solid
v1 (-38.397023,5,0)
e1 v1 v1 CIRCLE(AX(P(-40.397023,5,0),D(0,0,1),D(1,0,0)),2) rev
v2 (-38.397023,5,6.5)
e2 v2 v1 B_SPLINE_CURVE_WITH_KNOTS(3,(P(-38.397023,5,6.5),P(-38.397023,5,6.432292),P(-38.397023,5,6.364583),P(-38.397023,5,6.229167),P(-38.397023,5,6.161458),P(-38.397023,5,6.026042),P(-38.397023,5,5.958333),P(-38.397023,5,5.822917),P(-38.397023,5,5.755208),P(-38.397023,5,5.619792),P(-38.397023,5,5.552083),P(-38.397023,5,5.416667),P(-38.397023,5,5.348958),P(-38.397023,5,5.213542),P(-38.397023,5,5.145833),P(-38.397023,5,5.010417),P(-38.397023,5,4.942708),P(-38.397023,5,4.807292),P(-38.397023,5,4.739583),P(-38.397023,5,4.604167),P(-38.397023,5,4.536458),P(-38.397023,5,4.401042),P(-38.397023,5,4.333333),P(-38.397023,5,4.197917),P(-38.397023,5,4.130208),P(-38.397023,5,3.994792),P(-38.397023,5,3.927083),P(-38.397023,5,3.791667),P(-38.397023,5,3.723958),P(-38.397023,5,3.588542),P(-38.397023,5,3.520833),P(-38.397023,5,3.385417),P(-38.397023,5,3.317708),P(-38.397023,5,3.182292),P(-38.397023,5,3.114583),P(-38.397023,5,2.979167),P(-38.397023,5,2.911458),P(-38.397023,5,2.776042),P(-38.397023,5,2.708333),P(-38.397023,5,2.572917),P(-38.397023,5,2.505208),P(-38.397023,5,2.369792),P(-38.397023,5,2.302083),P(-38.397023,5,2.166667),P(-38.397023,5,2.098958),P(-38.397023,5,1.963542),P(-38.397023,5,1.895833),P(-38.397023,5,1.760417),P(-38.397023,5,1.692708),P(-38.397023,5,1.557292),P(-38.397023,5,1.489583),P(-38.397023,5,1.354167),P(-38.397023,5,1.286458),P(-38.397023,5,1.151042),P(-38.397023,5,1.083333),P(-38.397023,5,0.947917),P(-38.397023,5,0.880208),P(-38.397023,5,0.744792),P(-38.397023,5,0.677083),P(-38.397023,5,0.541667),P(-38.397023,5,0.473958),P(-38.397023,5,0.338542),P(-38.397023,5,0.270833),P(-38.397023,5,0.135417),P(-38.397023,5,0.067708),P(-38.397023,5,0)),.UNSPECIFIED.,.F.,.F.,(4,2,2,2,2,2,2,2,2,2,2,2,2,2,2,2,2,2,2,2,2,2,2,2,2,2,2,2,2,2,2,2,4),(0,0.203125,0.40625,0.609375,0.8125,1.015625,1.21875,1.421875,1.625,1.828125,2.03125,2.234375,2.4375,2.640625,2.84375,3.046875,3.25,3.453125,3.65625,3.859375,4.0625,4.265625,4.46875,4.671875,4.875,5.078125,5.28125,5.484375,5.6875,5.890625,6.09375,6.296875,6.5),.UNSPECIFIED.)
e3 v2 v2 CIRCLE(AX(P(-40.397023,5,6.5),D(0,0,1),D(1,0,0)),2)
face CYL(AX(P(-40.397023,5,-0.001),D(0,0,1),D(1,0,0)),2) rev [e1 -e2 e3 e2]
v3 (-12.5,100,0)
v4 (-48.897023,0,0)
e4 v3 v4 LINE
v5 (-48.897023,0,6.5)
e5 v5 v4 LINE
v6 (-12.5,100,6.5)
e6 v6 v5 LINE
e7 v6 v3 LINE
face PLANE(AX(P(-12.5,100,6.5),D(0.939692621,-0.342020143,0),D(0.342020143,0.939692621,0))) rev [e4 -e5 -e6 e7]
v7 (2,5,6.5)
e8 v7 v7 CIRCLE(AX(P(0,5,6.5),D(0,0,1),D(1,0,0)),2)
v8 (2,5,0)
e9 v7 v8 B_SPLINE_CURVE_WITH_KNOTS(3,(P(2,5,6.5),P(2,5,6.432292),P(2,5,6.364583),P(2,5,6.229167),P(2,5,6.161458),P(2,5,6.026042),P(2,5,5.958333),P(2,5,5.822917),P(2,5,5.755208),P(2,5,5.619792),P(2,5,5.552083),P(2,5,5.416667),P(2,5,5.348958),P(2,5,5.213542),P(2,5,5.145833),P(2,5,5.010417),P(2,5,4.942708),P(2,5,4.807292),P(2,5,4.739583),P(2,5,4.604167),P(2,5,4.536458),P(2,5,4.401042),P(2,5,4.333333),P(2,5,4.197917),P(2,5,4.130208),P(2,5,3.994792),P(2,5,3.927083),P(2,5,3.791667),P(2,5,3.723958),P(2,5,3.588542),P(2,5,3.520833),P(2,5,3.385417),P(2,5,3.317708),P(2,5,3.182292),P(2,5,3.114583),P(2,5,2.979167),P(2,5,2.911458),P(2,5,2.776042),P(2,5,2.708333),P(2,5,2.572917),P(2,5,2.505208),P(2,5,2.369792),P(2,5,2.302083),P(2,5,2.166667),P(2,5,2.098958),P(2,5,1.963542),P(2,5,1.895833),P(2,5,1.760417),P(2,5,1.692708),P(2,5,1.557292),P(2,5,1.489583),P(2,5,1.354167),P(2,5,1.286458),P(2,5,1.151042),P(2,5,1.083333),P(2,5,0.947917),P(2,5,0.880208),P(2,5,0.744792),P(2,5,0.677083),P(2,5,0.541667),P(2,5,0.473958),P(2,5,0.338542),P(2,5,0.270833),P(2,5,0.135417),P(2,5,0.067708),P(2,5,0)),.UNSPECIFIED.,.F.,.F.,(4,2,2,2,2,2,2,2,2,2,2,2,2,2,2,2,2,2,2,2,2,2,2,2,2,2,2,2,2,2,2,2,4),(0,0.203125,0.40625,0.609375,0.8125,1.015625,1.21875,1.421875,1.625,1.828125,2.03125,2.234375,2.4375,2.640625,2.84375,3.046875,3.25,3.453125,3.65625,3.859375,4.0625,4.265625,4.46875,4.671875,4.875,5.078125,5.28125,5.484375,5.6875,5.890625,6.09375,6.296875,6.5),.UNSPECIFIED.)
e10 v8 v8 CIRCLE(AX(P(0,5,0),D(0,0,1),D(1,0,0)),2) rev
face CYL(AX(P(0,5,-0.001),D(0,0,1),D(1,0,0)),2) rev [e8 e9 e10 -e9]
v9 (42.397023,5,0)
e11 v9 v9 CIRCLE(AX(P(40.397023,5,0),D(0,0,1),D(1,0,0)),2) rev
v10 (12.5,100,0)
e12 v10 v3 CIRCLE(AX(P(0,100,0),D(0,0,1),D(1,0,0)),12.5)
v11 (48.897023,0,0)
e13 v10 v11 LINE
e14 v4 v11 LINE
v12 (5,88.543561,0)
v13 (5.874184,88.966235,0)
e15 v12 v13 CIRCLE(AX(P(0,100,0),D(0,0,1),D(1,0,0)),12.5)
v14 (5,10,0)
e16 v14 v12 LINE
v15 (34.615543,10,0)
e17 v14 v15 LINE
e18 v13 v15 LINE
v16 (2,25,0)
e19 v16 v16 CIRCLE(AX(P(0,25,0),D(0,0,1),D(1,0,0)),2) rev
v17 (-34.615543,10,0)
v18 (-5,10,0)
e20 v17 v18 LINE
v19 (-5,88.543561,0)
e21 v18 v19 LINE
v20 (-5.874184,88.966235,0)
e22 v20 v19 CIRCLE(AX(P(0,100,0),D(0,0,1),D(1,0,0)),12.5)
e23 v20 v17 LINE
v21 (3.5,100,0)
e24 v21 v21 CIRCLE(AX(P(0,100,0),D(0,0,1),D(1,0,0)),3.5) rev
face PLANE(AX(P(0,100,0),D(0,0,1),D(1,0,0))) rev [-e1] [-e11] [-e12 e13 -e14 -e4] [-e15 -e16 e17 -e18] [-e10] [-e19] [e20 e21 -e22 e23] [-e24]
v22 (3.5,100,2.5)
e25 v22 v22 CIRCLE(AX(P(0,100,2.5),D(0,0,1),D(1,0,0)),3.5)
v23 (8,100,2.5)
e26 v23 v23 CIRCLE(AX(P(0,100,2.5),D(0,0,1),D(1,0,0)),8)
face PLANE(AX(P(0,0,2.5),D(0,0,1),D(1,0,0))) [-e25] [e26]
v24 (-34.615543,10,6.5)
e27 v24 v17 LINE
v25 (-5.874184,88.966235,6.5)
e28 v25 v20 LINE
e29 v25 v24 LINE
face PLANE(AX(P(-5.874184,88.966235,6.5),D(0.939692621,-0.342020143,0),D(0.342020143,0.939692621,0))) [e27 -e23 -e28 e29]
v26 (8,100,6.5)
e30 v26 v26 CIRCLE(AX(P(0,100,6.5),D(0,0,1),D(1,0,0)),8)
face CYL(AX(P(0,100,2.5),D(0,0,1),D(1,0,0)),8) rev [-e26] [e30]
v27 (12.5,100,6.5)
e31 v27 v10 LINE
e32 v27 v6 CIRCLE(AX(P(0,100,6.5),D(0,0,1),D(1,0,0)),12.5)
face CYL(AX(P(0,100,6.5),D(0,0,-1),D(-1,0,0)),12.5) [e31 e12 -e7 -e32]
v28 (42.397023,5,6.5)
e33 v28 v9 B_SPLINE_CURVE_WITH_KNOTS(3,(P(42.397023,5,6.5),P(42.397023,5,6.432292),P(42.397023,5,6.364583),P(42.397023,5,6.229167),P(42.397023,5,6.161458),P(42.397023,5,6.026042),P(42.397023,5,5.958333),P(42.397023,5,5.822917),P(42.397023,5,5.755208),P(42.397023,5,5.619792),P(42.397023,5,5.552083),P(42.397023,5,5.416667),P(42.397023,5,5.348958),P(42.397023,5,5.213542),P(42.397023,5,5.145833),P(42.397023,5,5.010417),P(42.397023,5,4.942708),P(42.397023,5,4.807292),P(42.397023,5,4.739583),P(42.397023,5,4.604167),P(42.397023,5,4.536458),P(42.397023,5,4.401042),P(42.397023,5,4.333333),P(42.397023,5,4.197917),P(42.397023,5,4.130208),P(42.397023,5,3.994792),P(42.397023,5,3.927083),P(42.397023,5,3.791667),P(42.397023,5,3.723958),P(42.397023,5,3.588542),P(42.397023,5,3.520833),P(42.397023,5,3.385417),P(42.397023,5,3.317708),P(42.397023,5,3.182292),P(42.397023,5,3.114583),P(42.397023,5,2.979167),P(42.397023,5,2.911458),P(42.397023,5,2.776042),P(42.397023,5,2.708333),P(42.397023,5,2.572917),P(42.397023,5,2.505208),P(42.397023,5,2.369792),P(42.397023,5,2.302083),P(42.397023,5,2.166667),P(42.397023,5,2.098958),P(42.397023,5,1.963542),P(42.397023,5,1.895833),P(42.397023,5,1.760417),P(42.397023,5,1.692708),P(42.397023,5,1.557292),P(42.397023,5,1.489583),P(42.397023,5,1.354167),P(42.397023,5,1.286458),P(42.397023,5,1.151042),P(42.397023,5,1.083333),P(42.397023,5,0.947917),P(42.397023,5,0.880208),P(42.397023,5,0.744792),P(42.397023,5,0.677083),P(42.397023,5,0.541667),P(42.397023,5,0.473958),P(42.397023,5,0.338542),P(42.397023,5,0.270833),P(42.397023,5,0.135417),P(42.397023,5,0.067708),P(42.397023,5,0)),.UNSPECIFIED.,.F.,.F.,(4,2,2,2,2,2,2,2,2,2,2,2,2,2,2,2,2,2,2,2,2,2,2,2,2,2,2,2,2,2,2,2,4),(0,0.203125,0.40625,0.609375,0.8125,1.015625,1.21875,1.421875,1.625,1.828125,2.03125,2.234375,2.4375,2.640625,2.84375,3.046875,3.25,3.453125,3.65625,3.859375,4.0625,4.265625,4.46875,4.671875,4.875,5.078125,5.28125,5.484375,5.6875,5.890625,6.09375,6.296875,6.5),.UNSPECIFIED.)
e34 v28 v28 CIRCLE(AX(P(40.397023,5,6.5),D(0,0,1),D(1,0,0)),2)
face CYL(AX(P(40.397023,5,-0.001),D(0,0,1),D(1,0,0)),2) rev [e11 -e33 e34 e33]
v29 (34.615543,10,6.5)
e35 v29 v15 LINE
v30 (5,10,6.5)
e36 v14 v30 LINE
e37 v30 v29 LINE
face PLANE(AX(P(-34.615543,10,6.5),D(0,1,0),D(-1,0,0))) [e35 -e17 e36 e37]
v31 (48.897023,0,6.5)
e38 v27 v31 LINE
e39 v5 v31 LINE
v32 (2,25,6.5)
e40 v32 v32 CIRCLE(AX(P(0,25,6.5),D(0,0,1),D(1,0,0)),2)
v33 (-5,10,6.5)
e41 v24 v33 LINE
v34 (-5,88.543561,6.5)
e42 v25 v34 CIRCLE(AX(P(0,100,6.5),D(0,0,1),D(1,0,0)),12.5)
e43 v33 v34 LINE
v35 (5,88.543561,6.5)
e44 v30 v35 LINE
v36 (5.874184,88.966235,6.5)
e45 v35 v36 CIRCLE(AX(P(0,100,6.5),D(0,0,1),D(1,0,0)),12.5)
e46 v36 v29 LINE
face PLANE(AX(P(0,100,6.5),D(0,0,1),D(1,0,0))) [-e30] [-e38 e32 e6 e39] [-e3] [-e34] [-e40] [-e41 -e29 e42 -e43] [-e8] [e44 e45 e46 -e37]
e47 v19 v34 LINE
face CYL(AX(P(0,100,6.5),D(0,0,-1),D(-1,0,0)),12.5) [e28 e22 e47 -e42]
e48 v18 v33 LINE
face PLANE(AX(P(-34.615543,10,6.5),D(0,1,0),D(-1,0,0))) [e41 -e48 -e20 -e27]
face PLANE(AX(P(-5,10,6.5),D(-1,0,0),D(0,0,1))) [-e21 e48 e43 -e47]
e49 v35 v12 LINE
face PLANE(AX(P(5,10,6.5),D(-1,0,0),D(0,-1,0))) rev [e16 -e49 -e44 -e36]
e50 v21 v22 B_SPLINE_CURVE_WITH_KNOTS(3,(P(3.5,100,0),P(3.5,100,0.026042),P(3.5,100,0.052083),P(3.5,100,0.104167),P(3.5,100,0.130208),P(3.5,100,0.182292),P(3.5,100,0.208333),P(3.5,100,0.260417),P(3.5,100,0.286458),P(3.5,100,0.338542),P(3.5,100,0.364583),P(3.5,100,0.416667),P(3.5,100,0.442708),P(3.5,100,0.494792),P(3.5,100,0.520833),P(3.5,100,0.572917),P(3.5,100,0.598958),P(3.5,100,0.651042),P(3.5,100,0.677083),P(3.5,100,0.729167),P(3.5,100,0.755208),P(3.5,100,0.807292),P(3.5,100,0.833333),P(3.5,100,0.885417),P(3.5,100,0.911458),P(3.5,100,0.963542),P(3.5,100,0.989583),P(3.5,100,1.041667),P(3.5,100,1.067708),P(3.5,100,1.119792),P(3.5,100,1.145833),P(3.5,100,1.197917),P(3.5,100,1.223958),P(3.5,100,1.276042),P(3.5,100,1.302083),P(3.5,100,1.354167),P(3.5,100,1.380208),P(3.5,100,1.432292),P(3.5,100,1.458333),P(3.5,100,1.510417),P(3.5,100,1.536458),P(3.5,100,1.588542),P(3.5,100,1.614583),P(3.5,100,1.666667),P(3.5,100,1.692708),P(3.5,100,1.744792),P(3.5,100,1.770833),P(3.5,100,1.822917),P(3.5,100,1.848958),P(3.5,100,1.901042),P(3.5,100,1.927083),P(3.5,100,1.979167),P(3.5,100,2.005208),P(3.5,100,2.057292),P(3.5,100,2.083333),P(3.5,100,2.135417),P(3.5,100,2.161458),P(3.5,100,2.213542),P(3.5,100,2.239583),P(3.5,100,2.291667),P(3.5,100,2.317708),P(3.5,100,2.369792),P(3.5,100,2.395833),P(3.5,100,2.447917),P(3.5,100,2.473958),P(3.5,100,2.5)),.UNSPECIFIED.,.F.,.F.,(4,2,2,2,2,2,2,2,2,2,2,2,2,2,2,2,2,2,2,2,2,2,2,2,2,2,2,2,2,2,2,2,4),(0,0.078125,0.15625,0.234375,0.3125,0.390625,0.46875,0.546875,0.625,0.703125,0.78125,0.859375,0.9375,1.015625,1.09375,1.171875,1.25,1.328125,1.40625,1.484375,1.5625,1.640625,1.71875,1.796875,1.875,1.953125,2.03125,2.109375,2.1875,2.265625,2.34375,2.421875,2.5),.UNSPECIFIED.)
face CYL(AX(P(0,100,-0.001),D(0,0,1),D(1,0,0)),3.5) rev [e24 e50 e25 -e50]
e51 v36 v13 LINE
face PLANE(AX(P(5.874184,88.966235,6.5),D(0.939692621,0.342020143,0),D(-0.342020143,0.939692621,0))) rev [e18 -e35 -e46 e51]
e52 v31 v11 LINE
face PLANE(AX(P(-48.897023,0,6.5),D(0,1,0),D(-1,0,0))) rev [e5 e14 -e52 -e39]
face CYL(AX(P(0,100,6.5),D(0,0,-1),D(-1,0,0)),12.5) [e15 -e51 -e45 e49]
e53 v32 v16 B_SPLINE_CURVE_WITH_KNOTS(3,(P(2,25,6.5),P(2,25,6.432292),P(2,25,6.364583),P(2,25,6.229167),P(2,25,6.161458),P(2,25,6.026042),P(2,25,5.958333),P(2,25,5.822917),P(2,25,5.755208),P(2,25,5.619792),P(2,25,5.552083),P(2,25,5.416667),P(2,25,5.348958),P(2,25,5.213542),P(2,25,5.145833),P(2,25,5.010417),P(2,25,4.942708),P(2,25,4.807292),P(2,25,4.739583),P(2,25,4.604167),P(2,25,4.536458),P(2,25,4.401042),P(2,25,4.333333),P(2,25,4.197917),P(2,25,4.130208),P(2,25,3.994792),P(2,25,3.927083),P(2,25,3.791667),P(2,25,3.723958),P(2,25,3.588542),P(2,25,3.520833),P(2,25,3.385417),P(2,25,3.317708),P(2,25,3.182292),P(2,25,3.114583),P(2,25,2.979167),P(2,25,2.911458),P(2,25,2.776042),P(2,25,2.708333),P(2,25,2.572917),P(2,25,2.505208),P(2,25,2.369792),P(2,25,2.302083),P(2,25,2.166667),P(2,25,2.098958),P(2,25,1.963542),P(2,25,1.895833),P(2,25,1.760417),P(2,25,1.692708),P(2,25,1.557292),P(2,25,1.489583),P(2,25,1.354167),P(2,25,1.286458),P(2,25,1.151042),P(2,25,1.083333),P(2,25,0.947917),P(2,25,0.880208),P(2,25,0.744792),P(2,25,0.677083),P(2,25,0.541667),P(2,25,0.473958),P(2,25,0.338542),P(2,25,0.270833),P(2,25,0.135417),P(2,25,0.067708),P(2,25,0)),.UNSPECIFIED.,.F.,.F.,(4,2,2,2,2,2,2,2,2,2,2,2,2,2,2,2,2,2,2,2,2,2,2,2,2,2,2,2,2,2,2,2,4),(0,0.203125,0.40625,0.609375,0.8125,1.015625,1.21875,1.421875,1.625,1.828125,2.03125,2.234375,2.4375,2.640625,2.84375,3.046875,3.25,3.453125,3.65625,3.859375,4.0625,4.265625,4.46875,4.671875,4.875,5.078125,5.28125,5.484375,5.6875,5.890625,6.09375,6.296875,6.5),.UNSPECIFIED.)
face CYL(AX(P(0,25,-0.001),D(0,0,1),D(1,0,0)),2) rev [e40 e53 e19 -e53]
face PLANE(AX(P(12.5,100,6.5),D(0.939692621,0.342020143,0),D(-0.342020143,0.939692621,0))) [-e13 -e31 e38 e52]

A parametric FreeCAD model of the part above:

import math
import FreeCAD as App
import Part
import Sketcher

V = App.Vector
Q = App.Units.Quantity

doc = App.newDocument("Part")
body = doc.addObject("PartDesign::Body", "Body")

sketch1 = body.newObject("Sketcher::SketchObject", "Sketch")
sketch1.AttachmentSupport = (doc.getObject("XY_Plane"), [""])
sketch1.MapMode = "FlatFace"
sketch1.addGeometry(Part.ArcOfCircle(Part.Circle(V(0, 100, 0), V(0, 0, 1), 12.5), math.radians(0), math.radians(180)), False)
sketch1.addGeometry(Part.LineSegment(V(-12.5, 100, 0), V(-48.897023, 0, 0)), False)
sketch1.addGeometry(Part.LineSegment(V(-48.897023, 0, 0), V(48.897023, 0, 0)), False)
sketch1.addGeometry(Part.LineSegment(V(48.897023, 0, 0), V(12.5, 100, 0)), False)
sketch1.addGeometry(Part.ArcOfCircle(Part.Circle(V(0, 100, 0), V(0, 0, 1), 12.5), math.radians(-118.03006), math.radians(-113.578178)), False)
sketch1.addGeometry(Part.LineSegment(V(-5, 88.543561, 0), V(-5, 10, 0)), False)
sketch1.addGeometry(Part.LineSegment(V(-5, 10, 0), V(-34.615543, 10, 0)), False)
sketch1.addGeometry(Part.LineSegment(V(-34.615543, 10, 0), V(-5.874184, 88.966235, 0)), False)
sketch1.addGeometry(Part.ArcOfCircle(Part.Circle(V(0, 100, 0), V(0, 0, 1), 12.5), math.radians(-66.421822), math.radians(-61.96994)), False)
sketch1.addGeometry(Part.LineSegment(V(5.874184, 88.966235, 0), V(34.615543, 10, 0)), False)
sketch1.addGeometry(Part.LineSegment(V(34.615543, 10, 0), V(5, 10, 0)), False)
sketch1.addGeometry(Part.LineSegment(V(5, 10, 0), V(5, 88.543561, 0)), False)
sketch1.addConstraint(Sketcher.Constraint("Coincident", 0, 2, 1, 1))
sketch1.addConstraint(Sketcher.Constraint("Coincident", 1, 2, 2, 1))
sketch1.addConstraint(Sketcher.Constraint("Coincident", 2, 2, 3, 1))
sketch1.addConstraint(Sketcher.Constraint("Coincident", 3, 2, 0, 1))
sketch1.addConstraint(Sketcher.Constraint("Coincident", 4, 2, 5, 1))
sketch1.addConstraint(Sketcher.Constraint("Coincident", 5, 2, 6, 1))
sketch1.addConstraint(Sketcher.Constraint("Coincident", 6, 2, 7, 1))
sketch1.addConstraint(Sketcher.Constraint("Coincident", 7, 2, 4, 1))
sketch1.addConstraint(Sketcher.Constraint("Coincident", 8, 2, 9, 1))
sketch1.addConstraint(Sketcher.Constraint("Coincident", 9, 2, 10, 1))
sketch1.addConstraint(Sketcher.Constraint("Coincident", 10, 2, 11, 1))
sketch1.addConstraint(Sketcher.Constraint("Coincident", 11, 2, 8, 1))
sketch1.addConstraint(Sketcher.Constraint("Horizontal", 2))
sketch1.addConstraint(Sketcher.Constraint("Vertical", 5))
sketch1.addConstraint(Sketcher.Constraint("Horizontal", 6))
sketch1.addConstraint(Sketcher.Constraint("Horizontal", 10))
sketch1.addConstraint(Sketcher.Constraint("Vertical", 11))
sketch1.addConstraint(Sketcher.Constraint("Coincident", 4, 3, 0, 3))
sketch1.addConstraint(Sketcher.Constraint("Coincident", 8, 3, 0, 3))
sketch1.addConstraint(Sketcher.Constraint("Equal", 0, 4))
sketch1.addConstraint(Sketcher.Constraint("Equal", 4, 8))
sketch1.addConstraint(Sketcher.Constraint("Symmetric", 1, 2, 2, 2, -1, 1))
sketch1.addConstraint(Sketcher.Constraint("Symmetric", 0, 2, 3, 2, -2))
sketch1.addConstraint(Sketcher.Constraint("Symmetric", 6, 2, 9, 2, -2))
sketch1.addConstraint(Sketcher.Constraint("Parallel", 1, 7))
sketch1.addConstraint(Sketcher.Constraint("Parallel", 3, 9))
sketch1.addConstraint(Sketcher.Constraint("Horizontal", 8, 3, 0, 2))
sketch1.addConstraint(Sketcher.Constraint("Horizontal", 4, 2, 11, 2))
sketch1.addConstraint(Sketcher.Constraint("Radius", 0, 12.5))
sketch1.addConstraint(Sketcher.Constraint("Angle", 1, Q("-110 deg")))
sketch1.addConstraint(Sketcher.Constraint("DistanceY", -1, 1, 0, 3, 100.0))
sketch1.addConstraint(Sketcher.Constraint("DistanceX", 4, 2, -1, 1, 5.0))
sketch1.addConstraint(Sketcher.Constraint("DistanceY", -1, 1, 5, 2, 10.0))
sketch1.addConstraint(Sketcher.Constraint("DistanceX", 6, 2, 6, 1, 29.615543))
pad1 = body.newObject("PartDesign::Pad", "Pad")
pad1.Profile = sketch1
pad1.Length = 6.5

sketch2 = body.newObject("Sketcher::SketchObject", "Sketch001")
sketch2.AttachmentSupport = (doc.getObject("XY_Plane"), [""])
sketch2.MapMode = "FlatFace"
sketch2.AttachmentOffset = App.Placement(V(0, 0, 6.5), App.Rotation())
sketch2.addGeometry(Part.Circle(V(0, 100, 0), V(0, 0, 1), 3.5), False)
sketch2.addConstraint(Sketcher.Constraint("PointOnObject", 0, 3, -2))
sketch2.addConstraint(Sketcher.Constraint("Diameter", 0, 7.0))
sketch2.addConstraint(Sketcher.Constraint("DistanceY", -1, 1, 0, 3, 100.0))
pocket1 = body.newObject("PartDesign::Pocket", "Pocket")
pocket1.Profile = sketch2
pocket1.Type = "UpToFirst"

sketch3 = body.newObject("Sketcher::SketchObject", "Sketch002")
sketch3.AttachmentSupport = (doc.getObject("XY_Plane"), [""])
sketch3.MapMode = "FlatFace"
sketch3.AttachmentOffset = App.Placement(V(0, 0, 6.5), App.Rotation())
sketch3.addGeometry(Part.Circle(V(0, 100, 0), V(0, 0, 1), 8), False)
sketch3.addGeometry(Part.Circle(V(0, 100, 0), V(0, 0, 1), 3.5), False)
sketch3.addConstraint(Sketcher.Constraint("Coincident", 1, 3, 0, 3))
sketch3.addConstraint(Sketcher.Constraint("PointOnObject", 0, 3, -2))
sketch3.addConstraint(Sketcher.Constraint("Diameter", 0, 16.0))
sketch3.addConstraint(Sketcher.Constraint("Diameter", 1, 7.0))
sketch3.addConstraint(Sketcher.Constraint("DistanceY", -1, 1, 0, 3, 100.0))
pocket2 = body.newObject("PartDesign::Pocket", "Pocket001")
pocket2.Profile = sketch3
pocket2.Length = 4

sketch4 = body.newObject("Sketcher::SketchObject", "Sketch003")
sketch4.AttachmentSupport = (doc.getObject("XY_Plane"), [""])
sketch4.MapMode = "FlatFace"
sketch4.AttachmentOffset = App.Placement(V(0, 0, 6.5), App.Rotation())
sketch4.addGeometry(Part.Circle(V(0, 5, 0), V(0, 0, 1), 2), False)
sketch4.addConstraint(Sketcher.Constraint("PointOnObject", 0, 3, -2))
sketch4.addConstraint(Sketcher.Constraint("Diameter", 0, 4.0))
sketch4.addConstraint(Sketcher.Constraint("DistanceY", -1, 1, 0, 3, 5.0))
pocket3 = body.newObject("PartDesign::Pocket", "Pocket002")
pocket3.Profile = sketch4
pocket3.Type = "UpToFirst"

sketch5 = body.newObject("Sketcher::SketchObject", "Sketch004")
sketch5.AttachmentSupport = (doc.getObject("XY_Plane"), [""])
sketch5.MapMode = "FlatFace"
sketch5.AttachmentOffset = App.Placement(V(0, 0, 6.5), App.Rotation())
sketch5.addGeometry(Part.Circle(V(40.397023, 5, 0), V(0, 0, 1), 2), False)
sketch5.addConstraint(Sketcher.Constraint("Diameter", 0, 4.0))
sketch5.addConstraint(Sketcher.Constraint("DistanceY", -1, 1, 0, 3, 5.0))
sketch5.addConstraint(Sketcher.Constraint("DistanceX", -1, 1, 0, 3, 40.397023))
pocket4 = body.newObject("PartDesign::Pocket", "Pocket003")
pocket4.Profile = sketch5
pocket4.Type = "UpToFirst"

sketch6 = body.newObject("Sketcher::SketchObject", "Sketch005")
sketch6.AttachmentSupport = (doc.getObject("XY_Plane"), [""])
sketch6.MapMode = "FlatFace"
sketch6.AttachmentOffset = App.Placement(V(0, 0, 6.5), App.Rotation())
sketch6.addGeometry(Part.Circle(V(-40.397023, 5, 0), V(0, 0, 1), 2), False)
sketch6.addConstraint(Sketcher.Constraint("Diameter", 0, 4.0))
sketch6.addConstraint(Sketcher.Constraint("DistanceY", -1, 1, 0, 3, 5.0))
sketch6.addConstraint(Sketcher.Constraint("DistanceX", 0, 3, -1, 1, 40.397023))
pocket5 = body.newObject("PartDesign::Pocket", "Pocket004")
pocket5.Profile = sketch6
pocket5.Type = "UpToFirst"

sketch7 = body.newObject("Sketcher::SketchObject", "Sketch006")
sketch7.AttachmentSupport = (doc.getObject("XY_Plane"), [""])
sketch7.MapMode = "FlatFace"
sketch7.AttachmentOffset = App.Placement(V(0, 0, 6.5), App.Rotation())
sketch7.addGeometry(Part.Circle(V(0, 25, 0), V(0, 0, 1), 2), False)
sketch7.addConstraint(Sketcher.Constraint("PointOnObject", 0, 3, -2))
sketch7.addConstraint(Sketcher.Constraint("Diameter", 0, 4.0))
sketch7.addConstraint(Sketcher.Constraint("DistanceY", -1, 1, 0, 3, 25.0))
pocket6 = body.newObject("PartDesign::Pocket", "Pocket005")
pocket6.Profile = sketch7
pocket6.Type = "UpToFirst"

doc.recompute()
